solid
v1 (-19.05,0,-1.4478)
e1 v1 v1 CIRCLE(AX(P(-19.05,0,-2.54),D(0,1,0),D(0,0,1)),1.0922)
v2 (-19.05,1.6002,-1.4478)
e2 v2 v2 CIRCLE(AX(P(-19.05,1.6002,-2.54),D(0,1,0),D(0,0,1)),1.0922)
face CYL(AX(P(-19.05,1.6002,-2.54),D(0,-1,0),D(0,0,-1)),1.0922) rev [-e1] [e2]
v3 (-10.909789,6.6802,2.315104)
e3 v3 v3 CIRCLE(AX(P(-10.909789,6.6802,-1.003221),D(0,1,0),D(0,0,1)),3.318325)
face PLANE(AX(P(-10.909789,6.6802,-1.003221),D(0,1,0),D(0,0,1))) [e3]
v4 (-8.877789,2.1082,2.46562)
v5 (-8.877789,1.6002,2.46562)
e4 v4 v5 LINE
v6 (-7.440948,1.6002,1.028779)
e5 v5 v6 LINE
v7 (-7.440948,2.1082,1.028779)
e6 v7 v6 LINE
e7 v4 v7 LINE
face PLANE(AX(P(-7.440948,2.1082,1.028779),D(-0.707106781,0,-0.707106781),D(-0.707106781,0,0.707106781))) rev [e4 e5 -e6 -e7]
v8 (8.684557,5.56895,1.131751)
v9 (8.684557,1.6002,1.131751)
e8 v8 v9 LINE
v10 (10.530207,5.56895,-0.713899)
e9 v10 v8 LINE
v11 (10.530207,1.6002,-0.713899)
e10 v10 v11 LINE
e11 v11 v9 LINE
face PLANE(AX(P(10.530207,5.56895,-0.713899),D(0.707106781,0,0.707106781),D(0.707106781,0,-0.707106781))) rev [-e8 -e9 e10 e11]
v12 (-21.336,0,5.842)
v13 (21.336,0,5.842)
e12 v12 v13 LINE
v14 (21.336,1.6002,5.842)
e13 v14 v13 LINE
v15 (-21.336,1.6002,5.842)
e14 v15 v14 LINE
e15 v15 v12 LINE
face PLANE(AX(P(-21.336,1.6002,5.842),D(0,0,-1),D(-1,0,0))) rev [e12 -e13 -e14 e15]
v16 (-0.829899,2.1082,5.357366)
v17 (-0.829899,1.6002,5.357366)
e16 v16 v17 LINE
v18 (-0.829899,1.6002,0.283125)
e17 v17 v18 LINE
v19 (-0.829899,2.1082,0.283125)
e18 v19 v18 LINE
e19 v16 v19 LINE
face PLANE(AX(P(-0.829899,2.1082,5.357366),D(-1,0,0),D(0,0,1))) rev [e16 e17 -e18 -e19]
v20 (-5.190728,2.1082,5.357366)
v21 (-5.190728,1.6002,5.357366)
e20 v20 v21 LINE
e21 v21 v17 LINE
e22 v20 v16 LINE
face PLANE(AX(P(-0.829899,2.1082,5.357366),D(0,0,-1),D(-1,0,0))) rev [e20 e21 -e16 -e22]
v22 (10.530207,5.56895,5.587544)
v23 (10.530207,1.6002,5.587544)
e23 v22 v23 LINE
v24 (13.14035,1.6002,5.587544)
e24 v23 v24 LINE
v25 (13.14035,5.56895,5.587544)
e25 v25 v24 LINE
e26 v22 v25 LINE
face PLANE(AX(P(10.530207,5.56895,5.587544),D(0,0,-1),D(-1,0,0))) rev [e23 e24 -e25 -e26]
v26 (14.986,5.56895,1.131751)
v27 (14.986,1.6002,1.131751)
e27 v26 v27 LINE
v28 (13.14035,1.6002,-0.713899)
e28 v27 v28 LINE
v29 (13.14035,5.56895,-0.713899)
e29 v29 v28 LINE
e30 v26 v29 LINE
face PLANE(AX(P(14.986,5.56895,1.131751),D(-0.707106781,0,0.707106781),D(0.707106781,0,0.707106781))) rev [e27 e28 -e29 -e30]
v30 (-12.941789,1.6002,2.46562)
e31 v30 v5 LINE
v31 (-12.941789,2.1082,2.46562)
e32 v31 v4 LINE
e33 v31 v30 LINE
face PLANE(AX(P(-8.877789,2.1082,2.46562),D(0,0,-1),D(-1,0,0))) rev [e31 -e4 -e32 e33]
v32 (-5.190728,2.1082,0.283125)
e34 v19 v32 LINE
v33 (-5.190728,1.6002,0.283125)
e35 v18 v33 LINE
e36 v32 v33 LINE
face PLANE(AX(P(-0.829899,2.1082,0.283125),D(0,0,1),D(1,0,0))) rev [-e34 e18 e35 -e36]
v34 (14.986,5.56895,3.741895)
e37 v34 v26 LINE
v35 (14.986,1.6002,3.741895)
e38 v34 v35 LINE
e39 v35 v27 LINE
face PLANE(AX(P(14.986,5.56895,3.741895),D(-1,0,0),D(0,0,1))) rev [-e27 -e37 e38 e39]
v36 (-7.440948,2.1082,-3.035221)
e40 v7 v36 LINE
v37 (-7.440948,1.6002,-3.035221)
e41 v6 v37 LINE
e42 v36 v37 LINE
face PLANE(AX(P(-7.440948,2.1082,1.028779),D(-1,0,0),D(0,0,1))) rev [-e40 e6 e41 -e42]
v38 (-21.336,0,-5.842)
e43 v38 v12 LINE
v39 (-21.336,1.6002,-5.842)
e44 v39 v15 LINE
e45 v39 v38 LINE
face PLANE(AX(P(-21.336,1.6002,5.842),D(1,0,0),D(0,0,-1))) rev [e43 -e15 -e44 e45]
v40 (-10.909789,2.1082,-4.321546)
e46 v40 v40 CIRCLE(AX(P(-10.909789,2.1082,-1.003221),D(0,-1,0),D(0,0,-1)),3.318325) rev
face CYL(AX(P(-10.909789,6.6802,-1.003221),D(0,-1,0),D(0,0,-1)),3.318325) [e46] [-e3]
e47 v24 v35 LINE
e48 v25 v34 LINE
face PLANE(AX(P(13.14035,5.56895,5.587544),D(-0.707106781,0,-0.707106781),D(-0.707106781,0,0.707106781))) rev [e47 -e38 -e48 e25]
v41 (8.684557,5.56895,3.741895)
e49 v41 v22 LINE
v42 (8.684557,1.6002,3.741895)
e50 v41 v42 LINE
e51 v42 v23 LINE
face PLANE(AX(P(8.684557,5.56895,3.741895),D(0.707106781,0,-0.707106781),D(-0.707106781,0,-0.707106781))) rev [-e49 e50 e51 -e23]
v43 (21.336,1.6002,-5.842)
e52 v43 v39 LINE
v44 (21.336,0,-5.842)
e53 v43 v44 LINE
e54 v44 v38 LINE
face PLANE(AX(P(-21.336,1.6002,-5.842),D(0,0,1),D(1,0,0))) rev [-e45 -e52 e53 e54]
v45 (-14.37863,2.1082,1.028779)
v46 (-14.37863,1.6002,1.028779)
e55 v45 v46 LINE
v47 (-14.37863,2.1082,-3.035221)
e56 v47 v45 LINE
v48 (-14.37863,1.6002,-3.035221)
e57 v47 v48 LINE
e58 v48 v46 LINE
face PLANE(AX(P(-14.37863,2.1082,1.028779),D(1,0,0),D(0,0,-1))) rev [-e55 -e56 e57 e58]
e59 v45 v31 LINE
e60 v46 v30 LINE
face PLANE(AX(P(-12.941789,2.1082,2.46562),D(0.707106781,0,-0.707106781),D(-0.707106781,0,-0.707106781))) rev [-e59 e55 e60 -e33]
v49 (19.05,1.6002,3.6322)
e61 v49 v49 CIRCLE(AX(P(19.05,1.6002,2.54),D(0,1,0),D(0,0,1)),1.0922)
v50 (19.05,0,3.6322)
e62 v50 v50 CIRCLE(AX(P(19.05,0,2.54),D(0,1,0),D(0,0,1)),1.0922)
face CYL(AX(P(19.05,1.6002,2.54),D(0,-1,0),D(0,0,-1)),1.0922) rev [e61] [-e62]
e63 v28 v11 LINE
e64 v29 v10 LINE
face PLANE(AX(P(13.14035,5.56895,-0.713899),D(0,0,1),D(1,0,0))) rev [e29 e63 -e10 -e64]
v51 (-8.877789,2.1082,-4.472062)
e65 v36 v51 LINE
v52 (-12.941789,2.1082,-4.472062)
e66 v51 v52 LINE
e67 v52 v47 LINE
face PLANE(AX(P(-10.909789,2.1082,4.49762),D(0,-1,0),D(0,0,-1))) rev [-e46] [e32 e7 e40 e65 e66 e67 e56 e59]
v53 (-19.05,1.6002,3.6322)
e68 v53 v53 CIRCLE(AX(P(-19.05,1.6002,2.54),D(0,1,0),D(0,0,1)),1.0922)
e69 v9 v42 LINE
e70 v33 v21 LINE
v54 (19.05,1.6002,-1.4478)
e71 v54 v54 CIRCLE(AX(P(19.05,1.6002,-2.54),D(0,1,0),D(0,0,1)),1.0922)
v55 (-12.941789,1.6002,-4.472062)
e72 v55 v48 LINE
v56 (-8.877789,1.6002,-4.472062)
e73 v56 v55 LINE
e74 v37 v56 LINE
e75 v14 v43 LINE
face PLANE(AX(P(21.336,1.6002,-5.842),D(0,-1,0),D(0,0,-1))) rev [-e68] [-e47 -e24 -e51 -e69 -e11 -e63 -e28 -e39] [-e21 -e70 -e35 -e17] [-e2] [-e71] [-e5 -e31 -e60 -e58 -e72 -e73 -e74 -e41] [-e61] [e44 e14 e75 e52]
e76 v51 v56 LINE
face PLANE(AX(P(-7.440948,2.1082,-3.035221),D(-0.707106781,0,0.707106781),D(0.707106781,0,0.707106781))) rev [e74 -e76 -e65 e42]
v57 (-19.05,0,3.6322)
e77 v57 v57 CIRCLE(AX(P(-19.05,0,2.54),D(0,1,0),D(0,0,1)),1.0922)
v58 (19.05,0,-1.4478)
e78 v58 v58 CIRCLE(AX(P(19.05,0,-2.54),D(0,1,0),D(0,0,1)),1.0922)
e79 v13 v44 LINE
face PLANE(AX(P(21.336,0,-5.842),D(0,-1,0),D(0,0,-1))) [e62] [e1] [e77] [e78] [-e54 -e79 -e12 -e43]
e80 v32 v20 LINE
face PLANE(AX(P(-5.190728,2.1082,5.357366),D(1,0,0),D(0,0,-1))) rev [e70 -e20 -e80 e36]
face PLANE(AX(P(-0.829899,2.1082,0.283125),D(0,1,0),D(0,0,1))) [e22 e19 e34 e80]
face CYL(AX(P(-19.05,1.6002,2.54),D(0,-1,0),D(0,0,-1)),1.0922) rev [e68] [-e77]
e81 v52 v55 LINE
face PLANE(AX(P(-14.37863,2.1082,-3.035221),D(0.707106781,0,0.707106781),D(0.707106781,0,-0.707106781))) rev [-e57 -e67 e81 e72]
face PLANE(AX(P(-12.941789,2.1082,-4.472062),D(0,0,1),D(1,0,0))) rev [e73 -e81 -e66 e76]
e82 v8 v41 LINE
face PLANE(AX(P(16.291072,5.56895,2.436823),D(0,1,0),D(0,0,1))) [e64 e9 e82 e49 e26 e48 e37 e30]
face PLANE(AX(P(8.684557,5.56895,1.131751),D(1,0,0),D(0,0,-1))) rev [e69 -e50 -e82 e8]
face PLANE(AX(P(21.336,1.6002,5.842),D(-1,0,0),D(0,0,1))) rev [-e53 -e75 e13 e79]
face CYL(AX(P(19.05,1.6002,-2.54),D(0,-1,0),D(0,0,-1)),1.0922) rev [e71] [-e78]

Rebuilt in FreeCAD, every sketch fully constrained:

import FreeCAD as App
import Part
import Sketcher
from FreeCAD import Vector
Q = App.Units.Quantity


def add_polygon(sketch, points):
    """Adds a closed chain of lines whose ends are joined by coincident constraints."""
    first, n = sketch.GeometryCount, len(points)
    for a, b in zip(points, points[1:] + points[:1]):
        sketch.addGeometry(Part.LineSegment(App.Vector(*a, 0), App.Vector(*b, 0)), False)
    for i in range(n):
        sketch.addConstraint(Sketcher.Constraint("Coincident", first + i, 2, first + (i + 1) % n, 1))

doc = App.newDocument("Part")
body = doc.addObject("PartDesign::Body", "Body")

# Sketch on XZ plane
sketch1 = body.newObject("Sketcher::SketchObject", "Sketch")
sketch1.AttachmentSupport = (doc.getObject("XZ_Plane"), [""])
sketch1.MapMode = "FlatFace"
add_polygon(sketch1, [(-21.3, -5.8), (-21.3, 5.8), (21.3, 5.8), (21.3, -5.8)])  # lines 0-3
sketch1.addGeometry(Part.Circle(Vector(-19.1, 2.5, 0), Vector(0, 0, 1), 1.1), False)  # 4
sketch1.addGeometry(Part.Circle(Vector(19.1, 2.5, 0), Vector(0, 0, 1), 1.1), False)  # 5
sketch1.addGeometry(Part.Circle(Vector(-19.1, -2.5, 0), Vector(0, 0, 1), 1.1), False)  # 6
sketch1.addGeometry(Part.Circle(Vector(19.1, -2.5, 0), Vector(0, 0, 1), 1.1), False)  # 7
sketch1.addConstraint([
    Sketcher.Constraint("Vertical", 0),
    Sketcher.Constraint("Horizontal", 1),
    Sketcher.Constraint("Vertical", 2),
    Sketcher.Constraint("Horizontal", 3),
    Sketcher.Constraint("Equal", 4, 5),
    Sketcher.Constraint("Equal", 5, 6),
    Sketcher.Constraint("Equal", 6, 7),
    Sketcher.Constraint("Symmetric", 5, 3, 6, 3, -1, 1),
    Sketcher.Constraint("Symmetric", 4, 3, 7, 3, -1, 1),
    Sketcher.Constraint("Symmetric", 0, 2, 2, 2, -1, 1),
    Sketcher.Constraint("Symmetric", 4, 3, 5, 3, -2),
    Sketcher.Constraint("Diameter", 4, Q("0.086 in")),
    Sketcher.Constraint("DistanceX", 1, 1, 1, 2, Q("1.68 in")),
    Sketcher.Constraint("DistanceY", 0, 1, 0, 2, Q("0.46 in")),
    Sketcher.Constraint("DistanceY", -1, 1, 4, 3, Q("0.1 in")),
    Sketcher.Constraint("DistanceX", 4, 3, 5, 3, Q("1.5 in")),
])
pad1 = body.newObject("PartDesign::Pad", "Pad")
pad1.Profile = sketch1
pad1.Length = Q("0.063 in")
pad1.Reversed = True

# Sketch on XZ plane
sketch2 = body.newObject("Sketcher::SketchObject", "Sketch001")
sketch2.AttachmentSupport = (doc.getObject("XZ_Plane"), [""])
sketch2.MapMode = "FlatFace"
sketch2.AttachmentOffset = App.Placement(Vector(0, 0, -0.063 * 25.4), App.Rotation())
add_polygon(sketch2, [(-5.2, 0.3), (-5.2, 5.4), (-0.8, 5.4), (-0.8, 0.3)])  # lines 0-3
sketch2.addConstraint([
    Sketcher.Constraint("Vertical", 0),
    Sketcher.Constraint("Horizontal", 1),
    Sketcher.Constraint("Vertical", 2),
    Sketcher.Constraint("Horizontal", 3),
    Sketcher.Constraint("DistanceX", 1, 1, 1, 2, Q("4.360829 mm")),
    Sketcher.Constraint("DistanceY", 0, 1, 0, 2, Q("5.074241 mm")),
    Sketcher.Constraint("DistanceX", 1, 2, -1, 1, Q("0.829899 mm")),
    Sketcher.Constraint("DistanceY", -1, 1, 0, 2, Q("5.357366 mm")),
])
pad2 = body.newObject("PartDesign::Pad", "Pad001")
pad2.Profile = sketch2
pad2.Length = Q("0.02 in")
pad2.Reversed = True

# Sketch on XZ plane
sketch3 = body.newObject("Sketcher::SketchObject", "Sketch002")
sketch3.AttachmentSupport = (doc.getObject("XZ_Plane"), [""])
sketch3.MapMode = "FlatFace"
sketch3.AttachmentOffset = App.Placement(Vector(0, 0, -0.063 * 25.4), App.Rotation())
add_polygon(sketch3, [(-7.4, 1), (-7.4, -3), (-8.9, -4.5), (-12.9, -4.5), (-14.4, -3), (-14.4, 1), (-12.9, 2.5), (-8.9, 2.5)])  # lines 0-7
sketch3.addConstraint([
    Sketcher.Constraint("Vertical", 0),
    Sketcher.Constraint("Horizontal", 2),
    Sketcher.Constraint("Vertical", 4),
    Sketcher.Constraint("Horizontal", 6),
    Sketcher.Constraint("Perpendicular", 1, 3),
    Sketcher.Constraint("Perpendicular", 3, 5),
    Sketcher.Constraint("Perpendicular", 5, 7),
    Sketcher.Constraint("Horizontal", 0, 2, 3, 2),
    Sketcher.Constraint("Horizontal", 4, 2, 7, 2),
    Sketcher.Constraint("Vertical", 2, 2, 5, 2),
    Sketcher.Constraint("Vertical", 1, 2, 6, 2),
    Sketcher.Constraint("Equal", 6, 0),
    Sketcher.Constraint("DistanceX", 2, 2, 2, 1, Q("0.16 in")),
    Sketcher.Constraint("Distance", 1, Q("0.08 in")),
    Sketcher.Constraint("DistanceX", 0, 2, -1, 1, Q("7.440948 mm")),
    Sketcher.Constraint("DistanceY", 0, 2, -1, 1, Q("3.035221 mm")),
])
pad3 = body.newObject("PartDesign::Pad", "Pad002")
pad3.Profile = sketch3
pad3.Length = Q("0.02 in")
pad3.Reversed = True

# Sketch on XZ plane
sketch4 = body.newObject("Sketcher::SketchObject", "Sketch003")
sketch4.AttachmentSupport = (doc.getObject("XZ_Plane"), [""])
sketch4.MapMode = "FlatFace"
sketch4.AttachmentOffset = App.Placement(Vector(0, 0, -0.083 * 25.4), App.Rotation())
sketch4.addGeometry(Part.Circle(Vector(-10.9, -1, 0), Vector(0, 0, 1), 3.3), False)
sketch4.addConstraint([
    Sketcher.Constraint("Diameter", 0, Q("6.63665 mm")),
    Sketcher.Constraint("DistanceX", 0, 3, -1, 1, Q("10.909789 mm")),
    Sketcher.Constraint("DistanceY", 0, 3, -1, 1, Q("1.003221 mm")),
])
pad4 = body.newObject("PartDesign::Pad", "Pad003")
pad4.Profile = sketch4
pad4.Length = Q("0.18 in")
pad4.Reversed = True

# Sketch on XZ plane
sketch5 = body.newObject("Sketcher::SketchObject", "Sketch004")
sketch5.AttachmentSupport = (doc.getObject("XZ_Plane"), [""])
sketch5.MapMode = "FlatFace"
sketch5.AttachmentOffset = App.Placement(Vector(0, 0, -0.063 * 25.4), App.Rotation())
add_polygon(sketch5, [(15, 3.7), (15, 1.1), (13.1, -0.7), (10.5, -0.7), (8.7, 1.1), (8.7, 3.7), (10.5, 5.6), (13.1, 5.6)])  # lines 0-7
sketch5.addConstraint([
    Sketcher.Constraint("Vertical", 0),
    Sketcher.Constraint("Horizontal", 2),
    Sketcher.Constraint("Vertical", 4),
    Sketcher.Constraint("Horizontal", 6),
    Sketcher.Constraint("Perpendicular", 1, 3),
    Sketcher.Constraint("Perpendicular", 3, 5),
    Sketcher.Constraint("Perpendicular", 5, 7),
    Sketcher.Constraint("Horizontal", 0, 2, 3, 2),
    Sketcher.Constraint("Horizontal", 4, 2, 7, 2),
    Sketcher.Constraint("Vertical", 2, 2, 5, 2),
    Sketcher.Constraint("Vertical", 1, 2, 6, 2),
    Sketcher.Constraint("Equal", 6, 0),
    Sketcher.Constraint("DistanceX", -1, 1, 0, 2, Q("0.59 in")),
    Sketcher.Constraint("DistanceY", 1, 2, -1, 1, Q("0.713899 mm")),
    Sketcher.Constraint("DistanceX", 2, 2, 2, 1, Q("2.610143 mm")),
    Sketcher.Constraint("DistanceY", -1, 1, 0, 2, Q("1.131751 mm")),
])
pad5 = body.newObject("PartDesign::Pad", "Pad004")
pad5.Profile = sketch5
pad5.Length = Q("0.15625 in")
pad5.Reversed = True

doc.recompute()
